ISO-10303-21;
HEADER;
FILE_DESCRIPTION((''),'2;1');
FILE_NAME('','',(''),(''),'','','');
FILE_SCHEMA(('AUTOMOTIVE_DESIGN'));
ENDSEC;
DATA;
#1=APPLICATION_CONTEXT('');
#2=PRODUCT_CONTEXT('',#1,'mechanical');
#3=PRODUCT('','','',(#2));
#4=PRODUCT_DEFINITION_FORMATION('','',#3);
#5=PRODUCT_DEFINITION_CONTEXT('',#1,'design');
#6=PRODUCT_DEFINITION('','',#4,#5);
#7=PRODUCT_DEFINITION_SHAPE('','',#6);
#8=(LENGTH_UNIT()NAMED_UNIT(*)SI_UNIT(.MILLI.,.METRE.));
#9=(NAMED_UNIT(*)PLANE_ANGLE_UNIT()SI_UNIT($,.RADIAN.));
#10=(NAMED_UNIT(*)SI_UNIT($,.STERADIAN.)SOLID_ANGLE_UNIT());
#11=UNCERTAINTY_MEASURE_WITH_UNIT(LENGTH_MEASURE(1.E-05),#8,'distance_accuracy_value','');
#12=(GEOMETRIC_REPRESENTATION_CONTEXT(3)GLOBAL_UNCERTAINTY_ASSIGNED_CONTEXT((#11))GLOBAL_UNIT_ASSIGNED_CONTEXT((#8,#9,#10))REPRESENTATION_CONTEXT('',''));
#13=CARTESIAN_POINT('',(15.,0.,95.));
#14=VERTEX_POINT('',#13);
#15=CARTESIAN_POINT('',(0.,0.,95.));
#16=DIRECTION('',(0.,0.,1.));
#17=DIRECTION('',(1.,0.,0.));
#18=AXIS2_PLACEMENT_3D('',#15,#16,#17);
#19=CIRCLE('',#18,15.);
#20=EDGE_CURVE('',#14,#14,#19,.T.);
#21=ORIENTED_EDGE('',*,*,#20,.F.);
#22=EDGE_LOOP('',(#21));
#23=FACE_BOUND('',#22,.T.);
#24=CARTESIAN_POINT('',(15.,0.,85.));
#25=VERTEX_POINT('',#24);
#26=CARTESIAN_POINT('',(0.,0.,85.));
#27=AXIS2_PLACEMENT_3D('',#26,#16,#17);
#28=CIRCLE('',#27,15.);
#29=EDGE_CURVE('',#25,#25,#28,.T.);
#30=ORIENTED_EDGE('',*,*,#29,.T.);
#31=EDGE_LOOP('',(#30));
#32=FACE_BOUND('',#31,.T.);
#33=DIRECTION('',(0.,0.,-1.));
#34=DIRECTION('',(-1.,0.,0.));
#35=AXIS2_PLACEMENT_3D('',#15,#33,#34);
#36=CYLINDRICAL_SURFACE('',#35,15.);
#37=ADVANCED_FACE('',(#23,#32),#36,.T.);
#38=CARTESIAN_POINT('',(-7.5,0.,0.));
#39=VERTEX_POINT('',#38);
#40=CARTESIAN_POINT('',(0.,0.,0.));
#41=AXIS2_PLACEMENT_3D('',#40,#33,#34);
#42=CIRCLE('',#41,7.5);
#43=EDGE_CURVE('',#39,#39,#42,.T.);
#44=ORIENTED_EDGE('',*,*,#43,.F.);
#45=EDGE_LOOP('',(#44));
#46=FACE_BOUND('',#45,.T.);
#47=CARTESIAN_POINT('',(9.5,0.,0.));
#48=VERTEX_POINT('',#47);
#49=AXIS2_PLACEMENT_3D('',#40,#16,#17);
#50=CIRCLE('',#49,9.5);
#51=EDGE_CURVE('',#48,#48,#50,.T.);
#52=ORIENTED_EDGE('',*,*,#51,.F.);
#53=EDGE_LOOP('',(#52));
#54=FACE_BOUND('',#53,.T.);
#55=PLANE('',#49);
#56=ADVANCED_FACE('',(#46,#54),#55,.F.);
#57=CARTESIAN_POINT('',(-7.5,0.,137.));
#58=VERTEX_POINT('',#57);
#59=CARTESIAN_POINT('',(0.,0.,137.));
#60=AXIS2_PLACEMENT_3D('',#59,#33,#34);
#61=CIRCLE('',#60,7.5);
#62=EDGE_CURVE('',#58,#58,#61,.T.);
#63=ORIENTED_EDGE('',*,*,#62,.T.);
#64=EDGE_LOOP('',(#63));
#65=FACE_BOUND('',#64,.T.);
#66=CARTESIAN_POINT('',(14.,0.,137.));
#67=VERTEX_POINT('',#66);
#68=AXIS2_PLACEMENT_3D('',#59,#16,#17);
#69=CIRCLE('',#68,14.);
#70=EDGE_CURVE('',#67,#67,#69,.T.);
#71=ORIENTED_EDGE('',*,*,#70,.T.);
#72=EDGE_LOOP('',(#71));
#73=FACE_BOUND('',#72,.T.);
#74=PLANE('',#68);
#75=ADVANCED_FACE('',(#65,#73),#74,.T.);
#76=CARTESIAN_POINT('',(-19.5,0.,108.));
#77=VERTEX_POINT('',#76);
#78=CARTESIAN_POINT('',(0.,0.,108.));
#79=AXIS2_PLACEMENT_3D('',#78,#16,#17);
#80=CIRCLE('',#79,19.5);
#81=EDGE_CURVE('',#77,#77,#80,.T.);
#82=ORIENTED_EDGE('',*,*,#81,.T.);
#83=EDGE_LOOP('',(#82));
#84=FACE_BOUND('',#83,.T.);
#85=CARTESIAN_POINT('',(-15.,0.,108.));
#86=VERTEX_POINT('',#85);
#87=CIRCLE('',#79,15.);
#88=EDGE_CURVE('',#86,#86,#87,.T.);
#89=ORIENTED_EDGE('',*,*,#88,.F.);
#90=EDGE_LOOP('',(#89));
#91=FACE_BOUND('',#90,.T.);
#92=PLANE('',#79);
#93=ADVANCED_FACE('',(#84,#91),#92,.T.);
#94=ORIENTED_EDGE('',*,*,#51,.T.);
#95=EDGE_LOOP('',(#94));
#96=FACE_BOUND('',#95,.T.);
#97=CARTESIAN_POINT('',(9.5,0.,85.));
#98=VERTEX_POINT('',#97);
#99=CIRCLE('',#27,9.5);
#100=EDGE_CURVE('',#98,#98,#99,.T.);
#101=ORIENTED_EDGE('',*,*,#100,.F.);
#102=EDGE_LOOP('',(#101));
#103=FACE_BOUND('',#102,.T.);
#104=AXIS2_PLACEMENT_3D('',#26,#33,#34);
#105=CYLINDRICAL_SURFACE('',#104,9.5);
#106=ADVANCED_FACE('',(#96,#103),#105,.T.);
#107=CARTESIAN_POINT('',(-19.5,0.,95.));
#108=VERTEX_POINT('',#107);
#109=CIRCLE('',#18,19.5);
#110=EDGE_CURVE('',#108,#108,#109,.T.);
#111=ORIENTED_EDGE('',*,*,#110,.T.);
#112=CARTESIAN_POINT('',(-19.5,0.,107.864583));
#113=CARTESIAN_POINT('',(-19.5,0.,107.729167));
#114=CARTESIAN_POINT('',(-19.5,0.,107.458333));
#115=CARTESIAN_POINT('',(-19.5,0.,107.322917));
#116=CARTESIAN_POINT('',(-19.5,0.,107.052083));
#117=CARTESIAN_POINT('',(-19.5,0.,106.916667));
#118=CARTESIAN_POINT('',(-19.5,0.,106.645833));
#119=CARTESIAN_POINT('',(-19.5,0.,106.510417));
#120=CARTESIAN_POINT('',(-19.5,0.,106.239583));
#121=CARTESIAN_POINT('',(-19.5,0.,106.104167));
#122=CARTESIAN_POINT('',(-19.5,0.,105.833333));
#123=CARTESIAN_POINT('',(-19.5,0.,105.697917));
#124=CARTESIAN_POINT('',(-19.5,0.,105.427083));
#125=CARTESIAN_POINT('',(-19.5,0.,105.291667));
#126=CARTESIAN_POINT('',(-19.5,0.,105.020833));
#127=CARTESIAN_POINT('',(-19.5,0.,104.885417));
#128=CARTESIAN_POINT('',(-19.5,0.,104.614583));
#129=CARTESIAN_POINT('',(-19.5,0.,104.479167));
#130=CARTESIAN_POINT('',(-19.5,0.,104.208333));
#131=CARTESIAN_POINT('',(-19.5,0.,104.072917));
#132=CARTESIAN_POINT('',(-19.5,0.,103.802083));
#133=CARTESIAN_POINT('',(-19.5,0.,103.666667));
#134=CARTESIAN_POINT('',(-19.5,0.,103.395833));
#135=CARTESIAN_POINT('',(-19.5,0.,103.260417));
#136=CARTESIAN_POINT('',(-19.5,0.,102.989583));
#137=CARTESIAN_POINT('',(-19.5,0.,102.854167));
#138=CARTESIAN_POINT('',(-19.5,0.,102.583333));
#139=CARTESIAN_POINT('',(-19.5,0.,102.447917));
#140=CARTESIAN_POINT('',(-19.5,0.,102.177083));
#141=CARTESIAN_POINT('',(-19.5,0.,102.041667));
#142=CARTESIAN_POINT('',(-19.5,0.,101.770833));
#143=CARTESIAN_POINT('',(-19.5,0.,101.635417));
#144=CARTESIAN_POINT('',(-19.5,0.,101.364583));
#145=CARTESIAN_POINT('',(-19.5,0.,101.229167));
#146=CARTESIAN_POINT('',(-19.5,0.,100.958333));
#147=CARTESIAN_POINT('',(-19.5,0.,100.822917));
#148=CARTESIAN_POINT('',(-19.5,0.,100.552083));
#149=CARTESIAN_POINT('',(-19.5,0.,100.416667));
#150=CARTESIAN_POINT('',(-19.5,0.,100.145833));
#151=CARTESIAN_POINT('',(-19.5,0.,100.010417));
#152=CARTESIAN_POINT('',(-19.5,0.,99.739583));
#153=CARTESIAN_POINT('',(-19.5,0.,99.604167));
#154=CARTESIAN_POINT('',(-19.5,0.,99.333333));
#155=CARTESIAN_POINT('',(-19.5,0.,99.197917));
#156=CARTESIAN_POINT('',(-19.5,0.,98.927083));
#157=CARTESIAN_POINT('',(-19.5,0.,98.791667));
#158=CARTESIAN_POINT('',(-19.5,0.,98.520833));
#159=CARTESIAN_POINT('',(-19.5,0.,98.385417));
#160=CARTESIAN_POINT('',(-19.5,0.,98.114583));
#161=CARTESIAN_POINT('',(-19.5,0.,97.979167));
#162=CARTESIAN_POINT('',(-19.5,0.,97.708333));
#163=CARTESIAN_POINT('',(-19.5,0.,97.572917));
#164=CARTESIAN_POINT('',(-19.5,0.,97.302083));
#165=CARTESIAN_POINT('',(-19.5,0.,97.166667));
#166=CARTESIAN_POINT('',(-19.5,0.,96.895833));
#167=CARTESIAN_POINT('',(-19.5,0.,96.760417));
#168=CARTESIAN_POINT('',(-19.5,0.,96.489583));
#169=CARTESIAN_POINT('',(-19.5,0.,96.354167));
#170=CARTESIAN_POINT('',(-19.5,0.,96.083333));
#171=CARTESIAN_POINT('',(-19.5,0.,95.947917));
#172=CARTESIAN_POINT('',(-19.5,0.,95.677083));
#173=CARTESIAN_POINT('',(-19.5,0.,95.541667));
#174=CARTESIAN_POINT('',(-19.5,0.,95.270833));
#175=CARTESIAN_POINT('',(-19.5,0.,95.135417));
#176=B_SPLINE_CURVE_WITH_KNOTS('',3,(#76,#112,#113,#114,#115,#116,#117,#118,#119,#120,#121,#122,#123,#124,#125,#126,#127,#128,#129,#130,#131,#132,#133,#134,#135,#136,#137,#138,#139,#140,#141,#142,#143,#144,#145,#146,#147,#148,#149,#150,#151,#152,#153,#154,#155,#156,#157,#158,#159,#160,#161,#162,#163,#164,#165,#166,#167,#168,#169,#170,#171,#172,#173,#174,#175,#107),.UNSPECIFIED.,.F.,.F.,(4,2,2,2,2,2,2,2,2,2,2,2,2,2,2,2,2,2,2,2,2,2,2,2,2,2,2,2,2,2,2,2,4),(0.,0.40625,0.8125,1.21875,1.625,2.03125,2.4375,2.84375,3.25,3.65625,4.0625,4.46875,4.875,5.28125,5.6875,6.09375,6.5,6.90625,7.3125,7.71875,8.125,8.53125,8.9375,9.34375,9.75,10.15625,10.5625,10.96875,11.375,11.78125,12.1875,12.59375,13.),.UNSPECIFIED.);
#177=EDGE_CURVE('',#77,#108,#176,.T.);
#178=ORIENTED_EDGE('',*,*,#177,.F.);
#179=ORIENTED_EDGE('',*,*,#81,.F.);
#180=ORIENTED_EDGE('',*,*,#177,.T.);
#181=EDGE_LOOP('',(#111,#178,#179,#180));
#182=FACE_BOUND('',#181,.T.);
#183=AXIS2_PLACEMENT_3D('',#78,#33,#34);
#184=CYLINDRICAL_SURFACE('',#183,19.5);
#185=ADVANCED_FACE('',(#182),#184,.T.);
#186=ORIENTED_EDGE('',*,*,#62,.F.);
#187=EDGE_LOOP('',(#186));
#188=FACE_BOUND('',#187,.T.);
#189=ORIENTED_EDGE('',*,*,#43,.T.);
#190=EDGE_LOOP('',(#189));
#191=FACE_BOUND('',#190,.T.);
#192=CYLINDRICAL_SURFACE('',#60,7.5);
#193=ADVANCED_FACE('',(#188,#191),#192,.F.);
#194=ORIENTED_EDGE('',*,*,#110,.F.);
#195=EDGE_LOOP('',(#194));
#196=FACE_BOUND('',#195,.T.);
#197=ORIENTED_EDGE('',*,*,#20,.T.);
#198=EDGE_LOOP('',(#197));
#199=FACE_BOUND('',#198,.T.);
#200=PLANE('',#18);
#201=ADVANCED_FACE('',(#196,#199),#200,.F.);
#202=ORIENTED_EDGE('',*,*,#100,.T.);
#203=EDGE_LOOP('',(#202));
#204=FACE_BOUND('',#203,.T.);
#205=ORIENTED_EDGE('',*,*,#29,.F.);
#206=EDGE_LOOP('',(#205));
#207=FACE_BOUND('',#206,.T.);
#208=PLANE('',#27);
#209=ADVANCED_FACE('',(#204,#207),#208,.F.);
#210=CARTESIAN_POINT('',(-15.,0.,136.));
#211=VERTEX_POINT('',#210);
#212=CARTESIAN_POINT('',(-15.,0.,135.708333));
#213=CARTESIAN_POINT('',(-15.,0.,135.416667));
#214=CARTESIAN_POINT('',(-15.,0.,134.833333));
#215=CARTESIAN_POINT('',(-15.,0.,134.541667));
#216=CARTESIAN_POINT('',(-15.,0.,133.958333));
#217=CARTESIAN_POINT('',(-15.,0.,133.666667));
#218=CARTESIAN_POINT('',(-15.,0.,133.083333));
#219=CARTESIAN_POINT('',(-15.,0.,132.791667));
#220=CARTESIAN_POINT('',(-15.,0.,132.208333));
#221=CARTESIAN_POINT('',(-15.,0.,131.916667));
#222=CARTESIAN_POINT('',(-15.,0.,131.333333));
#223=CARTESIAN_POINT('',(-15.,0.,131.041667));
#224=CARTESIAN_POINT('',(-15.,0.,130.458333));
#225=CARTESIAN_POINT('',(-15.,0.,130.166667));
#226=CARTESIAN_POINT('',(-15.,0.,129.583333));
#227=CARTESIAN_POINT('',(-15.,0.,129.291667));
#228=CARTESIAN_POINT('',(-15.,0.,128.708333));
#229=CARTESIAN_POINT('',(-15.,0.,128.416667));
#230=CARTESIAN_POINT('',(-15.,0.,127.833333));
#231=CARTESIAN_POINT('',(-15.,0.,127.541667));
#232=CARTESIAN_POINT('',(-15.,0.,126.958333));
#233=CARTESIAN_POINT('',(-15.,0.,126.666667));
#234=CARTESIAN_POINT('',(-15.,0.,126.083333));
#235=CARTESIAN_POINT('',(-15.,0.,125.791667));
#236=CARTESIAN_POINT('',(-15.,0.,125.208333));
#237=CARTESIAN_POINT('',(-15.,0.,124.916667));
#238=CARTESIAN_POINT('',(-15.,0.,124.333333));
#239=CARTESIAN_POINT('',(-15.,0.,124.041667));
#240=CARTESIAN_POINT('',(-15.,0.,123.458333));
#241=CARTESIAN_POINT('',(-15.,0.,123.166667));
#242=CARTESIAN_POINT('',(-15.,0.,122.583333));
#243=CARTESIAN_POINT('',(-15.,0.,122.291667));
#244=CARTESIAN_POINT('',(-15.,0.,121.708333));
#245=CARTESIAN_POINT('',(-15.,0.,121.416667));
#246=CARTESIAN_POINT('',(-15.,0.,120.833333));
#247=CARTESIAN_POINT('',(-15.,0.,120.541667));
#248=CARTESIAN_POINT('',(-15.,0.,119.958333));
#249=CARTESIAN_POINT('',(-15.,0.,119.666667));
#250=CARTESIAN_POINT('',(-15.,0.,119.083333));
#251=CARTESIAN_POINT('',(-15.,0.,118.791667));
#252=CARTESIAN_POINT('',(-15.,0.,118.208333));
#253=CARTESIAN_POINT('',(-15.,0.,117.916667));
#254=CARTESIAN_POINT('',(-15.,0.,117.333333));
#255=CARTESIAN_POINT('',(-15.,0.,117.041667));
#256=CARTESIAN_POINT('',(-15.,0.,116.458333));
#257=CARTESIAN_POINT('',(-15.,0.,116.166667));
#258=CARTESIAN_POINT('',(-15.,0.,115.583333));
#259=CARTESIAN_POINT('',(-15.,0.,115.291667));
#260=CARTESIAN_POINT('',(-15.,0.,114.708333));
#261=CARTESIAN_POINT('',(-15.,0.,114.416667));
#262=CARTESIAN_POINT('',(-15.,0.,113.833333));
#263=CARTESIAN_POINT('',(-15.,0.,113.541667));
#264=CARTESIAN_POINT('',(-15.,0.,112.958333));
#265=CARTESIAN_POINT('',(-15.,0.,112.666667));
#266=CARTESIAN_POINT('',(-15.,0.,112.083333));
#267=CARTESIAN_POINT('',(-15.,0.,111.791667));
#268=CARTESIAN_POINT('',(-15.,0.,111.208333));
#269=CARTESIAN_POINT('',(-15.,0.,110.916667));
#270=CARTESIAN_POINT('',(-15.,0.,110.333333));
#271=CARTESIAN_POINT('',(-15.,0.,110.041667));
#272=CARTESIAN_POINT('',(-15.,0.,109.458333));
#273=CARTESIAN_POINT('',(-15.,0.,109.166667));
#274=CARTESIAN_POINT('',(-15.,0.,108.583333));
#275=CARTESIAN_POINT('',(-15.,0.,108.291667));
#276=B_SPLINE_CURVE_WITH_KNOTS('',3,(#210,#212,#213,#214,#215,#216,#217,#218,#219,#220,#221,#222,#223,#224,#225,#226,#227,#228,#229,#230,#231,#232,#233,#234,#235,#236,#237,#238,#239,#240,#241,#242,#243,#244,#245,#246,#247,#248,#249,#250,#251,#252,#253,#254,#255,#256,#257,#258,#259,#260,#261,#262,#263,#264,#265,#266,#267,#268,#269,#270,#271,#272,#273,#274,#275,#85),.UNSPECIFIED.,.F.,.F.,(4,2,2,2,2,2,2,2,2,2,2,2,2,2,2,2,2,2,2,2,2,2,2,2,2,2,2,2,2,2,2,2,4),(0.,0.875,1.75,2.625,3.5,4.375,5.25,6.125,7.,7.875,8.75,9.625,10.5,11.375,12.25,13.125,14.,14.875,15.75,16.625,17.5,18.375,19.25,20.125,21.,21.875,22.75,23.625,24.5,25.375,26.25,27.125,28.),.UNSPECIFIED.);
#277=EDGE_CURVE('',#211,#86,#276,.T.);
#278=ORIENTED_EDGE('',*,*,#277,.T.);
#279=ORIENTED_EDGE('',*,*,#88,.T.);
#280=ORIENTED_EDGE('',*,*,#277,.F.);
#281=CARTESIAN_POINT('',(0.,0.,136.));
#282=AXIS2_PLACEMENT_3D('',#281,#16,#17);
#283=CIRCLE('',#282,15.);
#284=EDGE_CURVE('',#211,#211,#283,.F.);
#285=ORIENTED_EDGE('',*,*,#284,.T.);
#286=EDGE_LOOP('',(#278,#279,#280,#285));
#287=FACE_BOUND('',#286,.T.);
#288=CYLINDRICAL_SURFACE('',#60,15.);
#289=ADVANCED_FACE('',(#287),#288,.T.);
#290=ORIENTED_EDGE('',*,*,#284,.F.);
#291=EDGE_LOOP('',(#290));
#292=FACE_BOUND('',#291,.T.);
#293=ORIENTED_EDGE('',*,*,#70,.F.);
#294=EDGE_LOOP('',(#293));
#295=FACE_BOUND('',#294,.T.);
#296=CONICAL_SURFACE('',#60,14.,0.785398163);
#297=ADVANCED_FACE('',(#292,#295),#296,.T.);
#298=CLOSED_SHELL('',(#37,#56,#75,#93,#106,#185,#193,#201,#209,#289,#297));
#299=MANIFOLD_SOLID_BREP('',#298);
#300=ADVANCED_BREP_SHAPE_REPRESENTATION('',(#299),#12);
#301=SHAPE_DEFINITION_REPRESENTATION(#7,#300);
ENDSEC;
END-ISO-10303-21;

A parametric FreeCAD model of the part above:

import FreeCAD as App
import Part
import Sketcher
Q = App.Units.Quantity


def edges_at(feature, points):
    """Names of the edges that pass closest to the given points."""
    edges = feature.Shape.Edges
    near = lambda p: min(range(len(edges)), key=lambda i: edges[i].distToShape(Part.Vertex(*p))[0])
    return sorted({f"Edge{near(p) + 1}" for p in points})

doc = App.newDocument("Part")
params = doc.addObject("Spreadsheet::Sheet", "Params")
for row, (alias, value) in enumerate([
    ("sketch1_diameter", "19 mm"),
    ("pad1_length", "85 mm"),
    ("sketch2_diameter", "30 mm"),
    ("pad2_length", "10 mm"),
    ("sketch3_diameter", "39 mm"),
    ("pad3_length", "13 mm"),
    ("sketch4_diameter", "30 mm"),
    ("pad4_length", "29 mm"),
    ("chamfer_size", "1 mm"),
    ("sketch5_diameter", "15 mm"),
], start=1):
    params.set(f"A{row}", alias)
    params.set(f"B{row}", "=" + value)
    params.setAlias(f"B{row}", alias)

body = doc.addObject("PartDesign::Body", "Body")

# Sketch on XY plane
sketch1 = doc.addObject("Sketcher::SketchObject", "Sketch")
body.addObject(sketch1)
sketch1.AttachmentSupport = (doc.XY_Plane, [""])
sketch1.MapMode = "FlatFace"
sketch1.addGeometry(Part.Circle(App.Vector(0, 0, 0), App.Vector(0, 0, 1), 10), False)
sketch1.addConstraint(Sketcher.Constraint("Coincident", 0, 3, -1, 1))
sketch1.addConstraint(Sketcher.Constraint("Diameter", 0, Q("19 mm")))
sketch1.setExpression("Constraints[1]", "Params.sketch1_diameter")
pad1 = doc.addObject("PartDesign::Pad", "Pad")
body.addObject(pad1)
pad1.Profile = sketch1
pad1.setExpression("Length", "Params.pad1_length")

# Sketch on XY plane
sketch2 = doc.addObject("Sketcher::SketchObject", "Sketch001")
body.addObject(sketch2)
sketch2.AttachmentSupport = (doc.XY_Plane, [""])
sketch2.MapMode = "FlatFace"
sketch2.AttachmentOffset = App.Placement(App.Vector(0, 0, 85), App.Rotation())
sketch2.addGeometry(Part.Circle(App.Vector(0, 0, 0), App.Vector(0, 0, 1), 15), False)
sketch2.addConstraint(Sketcher.Constraint("Coincident", 0, 3, -1, 1))
sketch2.addConstraint(Sketcher.Constraint("Diameter", 0, Q("30 mm")))
sketch2.setExpression("Constraints[1]", "Params.sketch2_diameter")
pad2 = doc.addObject("PartDesign::Pad", "Pad001")
body.addObject(pad2)
pad2.Profile = sketch2
pad2.setExpression("Length", "Params.pad2_length")

# Sketch on XY plane
sketch3 = doc.addObject("Sketcher::SketchObject", "Sketch002")
body.addObject(sketch3)
sketch3.AttachmentSupport = (doc.XY_Plane, [""])
sketch3.MapMode = "FlatFace"
sketch3.AttachmentOffset = App.Placement(App.Vector(0, 0, 95), App.Rotation())
sketch3.addGeometry(Part.Circle(App.Vector(0, 0, 0), App.Vector(0, 0, 1), 20), False)
sketch3.addConstraint(Sketcher.Constraint("Coincident", 0, 3, -1, 1))
sketch3.addConstraint(Sketcher.Constraint("Diameter", 0, Q("39 mm")))
sketch3.setExpression("Constraints[1]", "Params.sketch3_diameter")
pad3 = doc.addObject("PartDesign::Pad", "Pad002")
body.addObject(pad3)
pad3.Profile = sketch3
pad3.setExpression("Length", "Params.pad3_length")

# Sketch on XY plane
sketch4 = doc.addObject("Sketcher::SketchObject", "Sketch003")
body.addObject(sketch4)
sketch4.AttachmentSupport = (doc.XY_Plane, [""])
sketch4.MapMode = "FlatFace"
sketch4.AttachmentOffset = App.Placement(App.Vector(0, 0, 108), App.Rotation())
sketch4.addGeometry(Part.Circle(App.Vector(0, 0, 0), App.Vector(0, 0, 1), 15), False)
sketch4.addConstraint(Sketcher.Constraint("Coincident", 0, 3, -1, 1))
sketch4.addConstraint(Sketcher.Constraint("Diameter", 0, Q("30 mm")))
sketch4.setExpression("Constraints[1]", "Params.sketch4_diameter")
pad4 = doc.addObject("PartDesign::Pad", "Pad003")
body.addObject(pad4)
pad4.Profile = sketch4
pad4.setExpression("Length", "Params.pad4_length")
doc.recompute()

chamfer = doc.addObject("PartDesign::Chamfer", "Chamfer")
body.addObject(chamfer)
chamfer.Base = (pad4, edges_at(pad4, [(-15, 0, 137)]))
chamfer.setExpression("Size", "Params.chamfer_size")

# Sketch on XY plane
sketch5 = doc.addObject("Sketcher::SketchObject", "Sketch004")
body.addObject(sketch5)
sketch5.AttachmentSupport = (doc.XY_Plane, [""])
sketch5.MapMode = "FlatFace"
sketch5.addGeometry(Part.Circle(App.Vector(0, 0, 0), App.Vector(0, 0, 1), 8), False)
sketch5.addConstraint(Sketcher.Constraint("Coincident", 0, 3, -1, 1))
sketch5.addConstraint(Sketcher.Constraint("Diameter", 0, Q("15 mm")))
sketch5.setExpression("Constraints[1]", "Params.sketch5_diameter")
pocket1 = doc.addObject("PartDesign::Pocket", "Pocket")
body.addObject(pocket1)
pocket1.Profile = sketch5
pocket1.Type = "ThroughAll"
pocket1.Reversed = True

doc.recompute()
